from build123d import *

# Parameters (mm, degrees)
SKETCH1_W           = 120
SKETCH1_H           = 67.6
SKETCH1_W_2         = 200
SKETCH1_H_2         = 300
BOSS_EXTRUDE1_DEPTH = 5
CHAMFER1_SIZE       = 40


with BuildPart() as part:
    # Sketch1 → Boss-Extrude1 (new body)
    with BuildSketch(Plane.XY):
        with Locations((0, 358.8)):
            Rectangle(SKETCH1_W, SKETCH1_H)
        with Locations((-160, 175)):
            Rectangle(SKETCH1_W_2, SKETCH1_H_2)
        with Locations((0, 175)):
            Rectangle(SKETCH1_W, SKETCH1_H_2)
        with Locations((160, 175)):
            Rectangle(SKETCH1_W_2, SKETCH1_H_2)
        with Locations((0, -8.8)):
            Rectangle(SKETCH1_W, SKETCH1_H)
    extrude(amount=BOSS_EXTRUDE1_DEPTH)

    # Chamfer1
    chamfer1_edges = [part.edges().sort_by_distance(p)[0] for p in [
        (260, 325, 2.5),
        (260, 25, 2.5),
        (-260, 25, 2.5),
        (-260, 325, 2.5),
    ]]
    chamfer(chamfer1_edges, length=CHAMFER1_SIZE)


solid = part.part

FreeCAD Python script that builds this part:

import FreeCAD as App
import Part
import Sketcher
from FreeCAD import Vector


def edges_at(feature, points):
    """Names of the edges that pass closest to the given points."""
    edges = feature.Shape.Edges
    near = lambda p: min(range(len(edges)), key=lambda i: edges[i].distToShape(Part.Vertex(*p))[0])
    return sorted({f"Edge{near(p) + 1}" for p in points})


def add_polygon(sketch, points):
    """Adds a closed chain of lines whose ends are joined by coincident constraints."""
    first, n = sketch.GeometryCount, len(points)
    for a, b in zip(points, points[1:] + points[:1]):
        sketch.addGeometry(Part.LineSegment(App.Vector(*a, 0), App.Vector(*b, 0)), False)
    for i in range(n):
        sketch.addConstraint(Sketcher.Constraint("Coincident", first + i, 2, first + (i + 1) % n, 1))

doc = App.newDocument("Part")
params = doc.addObject("Spreadsheet::Sheet", "Params")
for row, (alias, value) in enumerate([
    ("sketch1_width", "200 mm"),
    ("sketch1_width2", "120 mm"),
    ("sketch1_height", "300 mm"),
    ("sketch1_height2", "67.6 mm"),
    ("pad1_length", "5 mm"),
    ("chamfer_size", "40 mm"),
], start=1):
    params.set(f"A{row}", alias)
    params.set(f"B{row}", "=" + value)
    params.setAlias(f"B{row}", alias)

body = doc.addObject("PartDesign::Body", "Body")

# Sketch on XY plane
sketch1 = doc.addObject("Sketcher::SketchObject", "Sketch")
body.addObject(sketch1)
sketch1.AttachmentSupport = (doc.XY_Plane, [""])
sketch1.MapMode = "FlatFace"
add_polygon(sketch1, [(-60, 392.6), (-60, 325), (-260, 325), (-260, 25), (-60, 25), (-60, -42.6), (60, -42.6), (60, 25), (260, 25), (260, 325), (60, 325), (60, 392.6)])  # lines 0-11
sketch1.addConstraint([
    Sketcher.Constraint("Vertical", 0),
    Sketcher.Constraint("Horizontal", 1),
    Sketcher.Constraint("Vertical", 2),
    Sketcher.Constraint("Horizontal", 3),
    Sketcher.Constraint("Vertical", 4),
    Sketcher.Constraint("Horizontal", 5),
    Sketcher.Constraint("Vertical", 6),
    Sketcher.Constraint("Horizontal", 7),
    Sketcher.Constraint("Vertical", 8),
    Sketcher.Constraint("Horizontal", 9),
    Sketcher.Constraint("Vertical", 10),
    Sketcher.Constraint("Horizontal", 11),
    Sketcher.Constraint("Symmetric", 3, 2, 6, 2, -2),
    Sketcher.Constraint("Symmetric", 1, 2, 8, 2, -2),
    Sketcher.Constraint("Vertical", 0, 2, 3, 2),
    Sketcher.Constraint("Vertical", 6, 2, 9, 2),
    Sketcher.Constraint("Equal", 0, 4),
    Sketcher.Constraint("DistanceX", 1, 2, 1, 1, 200.0),
    Sketcher.Constraint("DistanceX", 5, 1, 5, 2, 120.0),
    Sketcher.Constraint("DistanceY", 2, 2, 2, 1, 300.0),
    Sketcher.Constraint("DistanceY", 0, 2, 0, 1, 67.6),
    Sketcher.Constraint("DistanceY", -1, 1, 0, 2, 325.0),
])
sketch1.setExpression("Constraints[29]", "Params.sketch1_width")
sketch1.setExpression("Constraints[30]", "Params.sketch1_width2")
sketch1.setExpression("Constraints[31]", "Params.sketch1_height")
sketch1.setExpression("Constraints[32]", "Params.sketch1_height2")
pad1 = doc.addObject("PartDesign::Pad", "Pad")
body.addObject(pad1)
pad1.Profile = sketch1
pad1.setExpression("Length", "Params.pad1_length")
doc.recompute()

chamfer = doc.addObject("PartDesign::Chamfer", "Chamfer")
body.addObject(chamfer)
chamfer.Base = (pad1, edges_at(pad1, [
    (260, 325, 2.5),
    (260, 25, 2.5),
    (-260, 25, 2.5),
    (-260, 325, 2.5),
]))
chamfer.setExpression("Size", "Params.chamfer_size")

doc.recompute()
